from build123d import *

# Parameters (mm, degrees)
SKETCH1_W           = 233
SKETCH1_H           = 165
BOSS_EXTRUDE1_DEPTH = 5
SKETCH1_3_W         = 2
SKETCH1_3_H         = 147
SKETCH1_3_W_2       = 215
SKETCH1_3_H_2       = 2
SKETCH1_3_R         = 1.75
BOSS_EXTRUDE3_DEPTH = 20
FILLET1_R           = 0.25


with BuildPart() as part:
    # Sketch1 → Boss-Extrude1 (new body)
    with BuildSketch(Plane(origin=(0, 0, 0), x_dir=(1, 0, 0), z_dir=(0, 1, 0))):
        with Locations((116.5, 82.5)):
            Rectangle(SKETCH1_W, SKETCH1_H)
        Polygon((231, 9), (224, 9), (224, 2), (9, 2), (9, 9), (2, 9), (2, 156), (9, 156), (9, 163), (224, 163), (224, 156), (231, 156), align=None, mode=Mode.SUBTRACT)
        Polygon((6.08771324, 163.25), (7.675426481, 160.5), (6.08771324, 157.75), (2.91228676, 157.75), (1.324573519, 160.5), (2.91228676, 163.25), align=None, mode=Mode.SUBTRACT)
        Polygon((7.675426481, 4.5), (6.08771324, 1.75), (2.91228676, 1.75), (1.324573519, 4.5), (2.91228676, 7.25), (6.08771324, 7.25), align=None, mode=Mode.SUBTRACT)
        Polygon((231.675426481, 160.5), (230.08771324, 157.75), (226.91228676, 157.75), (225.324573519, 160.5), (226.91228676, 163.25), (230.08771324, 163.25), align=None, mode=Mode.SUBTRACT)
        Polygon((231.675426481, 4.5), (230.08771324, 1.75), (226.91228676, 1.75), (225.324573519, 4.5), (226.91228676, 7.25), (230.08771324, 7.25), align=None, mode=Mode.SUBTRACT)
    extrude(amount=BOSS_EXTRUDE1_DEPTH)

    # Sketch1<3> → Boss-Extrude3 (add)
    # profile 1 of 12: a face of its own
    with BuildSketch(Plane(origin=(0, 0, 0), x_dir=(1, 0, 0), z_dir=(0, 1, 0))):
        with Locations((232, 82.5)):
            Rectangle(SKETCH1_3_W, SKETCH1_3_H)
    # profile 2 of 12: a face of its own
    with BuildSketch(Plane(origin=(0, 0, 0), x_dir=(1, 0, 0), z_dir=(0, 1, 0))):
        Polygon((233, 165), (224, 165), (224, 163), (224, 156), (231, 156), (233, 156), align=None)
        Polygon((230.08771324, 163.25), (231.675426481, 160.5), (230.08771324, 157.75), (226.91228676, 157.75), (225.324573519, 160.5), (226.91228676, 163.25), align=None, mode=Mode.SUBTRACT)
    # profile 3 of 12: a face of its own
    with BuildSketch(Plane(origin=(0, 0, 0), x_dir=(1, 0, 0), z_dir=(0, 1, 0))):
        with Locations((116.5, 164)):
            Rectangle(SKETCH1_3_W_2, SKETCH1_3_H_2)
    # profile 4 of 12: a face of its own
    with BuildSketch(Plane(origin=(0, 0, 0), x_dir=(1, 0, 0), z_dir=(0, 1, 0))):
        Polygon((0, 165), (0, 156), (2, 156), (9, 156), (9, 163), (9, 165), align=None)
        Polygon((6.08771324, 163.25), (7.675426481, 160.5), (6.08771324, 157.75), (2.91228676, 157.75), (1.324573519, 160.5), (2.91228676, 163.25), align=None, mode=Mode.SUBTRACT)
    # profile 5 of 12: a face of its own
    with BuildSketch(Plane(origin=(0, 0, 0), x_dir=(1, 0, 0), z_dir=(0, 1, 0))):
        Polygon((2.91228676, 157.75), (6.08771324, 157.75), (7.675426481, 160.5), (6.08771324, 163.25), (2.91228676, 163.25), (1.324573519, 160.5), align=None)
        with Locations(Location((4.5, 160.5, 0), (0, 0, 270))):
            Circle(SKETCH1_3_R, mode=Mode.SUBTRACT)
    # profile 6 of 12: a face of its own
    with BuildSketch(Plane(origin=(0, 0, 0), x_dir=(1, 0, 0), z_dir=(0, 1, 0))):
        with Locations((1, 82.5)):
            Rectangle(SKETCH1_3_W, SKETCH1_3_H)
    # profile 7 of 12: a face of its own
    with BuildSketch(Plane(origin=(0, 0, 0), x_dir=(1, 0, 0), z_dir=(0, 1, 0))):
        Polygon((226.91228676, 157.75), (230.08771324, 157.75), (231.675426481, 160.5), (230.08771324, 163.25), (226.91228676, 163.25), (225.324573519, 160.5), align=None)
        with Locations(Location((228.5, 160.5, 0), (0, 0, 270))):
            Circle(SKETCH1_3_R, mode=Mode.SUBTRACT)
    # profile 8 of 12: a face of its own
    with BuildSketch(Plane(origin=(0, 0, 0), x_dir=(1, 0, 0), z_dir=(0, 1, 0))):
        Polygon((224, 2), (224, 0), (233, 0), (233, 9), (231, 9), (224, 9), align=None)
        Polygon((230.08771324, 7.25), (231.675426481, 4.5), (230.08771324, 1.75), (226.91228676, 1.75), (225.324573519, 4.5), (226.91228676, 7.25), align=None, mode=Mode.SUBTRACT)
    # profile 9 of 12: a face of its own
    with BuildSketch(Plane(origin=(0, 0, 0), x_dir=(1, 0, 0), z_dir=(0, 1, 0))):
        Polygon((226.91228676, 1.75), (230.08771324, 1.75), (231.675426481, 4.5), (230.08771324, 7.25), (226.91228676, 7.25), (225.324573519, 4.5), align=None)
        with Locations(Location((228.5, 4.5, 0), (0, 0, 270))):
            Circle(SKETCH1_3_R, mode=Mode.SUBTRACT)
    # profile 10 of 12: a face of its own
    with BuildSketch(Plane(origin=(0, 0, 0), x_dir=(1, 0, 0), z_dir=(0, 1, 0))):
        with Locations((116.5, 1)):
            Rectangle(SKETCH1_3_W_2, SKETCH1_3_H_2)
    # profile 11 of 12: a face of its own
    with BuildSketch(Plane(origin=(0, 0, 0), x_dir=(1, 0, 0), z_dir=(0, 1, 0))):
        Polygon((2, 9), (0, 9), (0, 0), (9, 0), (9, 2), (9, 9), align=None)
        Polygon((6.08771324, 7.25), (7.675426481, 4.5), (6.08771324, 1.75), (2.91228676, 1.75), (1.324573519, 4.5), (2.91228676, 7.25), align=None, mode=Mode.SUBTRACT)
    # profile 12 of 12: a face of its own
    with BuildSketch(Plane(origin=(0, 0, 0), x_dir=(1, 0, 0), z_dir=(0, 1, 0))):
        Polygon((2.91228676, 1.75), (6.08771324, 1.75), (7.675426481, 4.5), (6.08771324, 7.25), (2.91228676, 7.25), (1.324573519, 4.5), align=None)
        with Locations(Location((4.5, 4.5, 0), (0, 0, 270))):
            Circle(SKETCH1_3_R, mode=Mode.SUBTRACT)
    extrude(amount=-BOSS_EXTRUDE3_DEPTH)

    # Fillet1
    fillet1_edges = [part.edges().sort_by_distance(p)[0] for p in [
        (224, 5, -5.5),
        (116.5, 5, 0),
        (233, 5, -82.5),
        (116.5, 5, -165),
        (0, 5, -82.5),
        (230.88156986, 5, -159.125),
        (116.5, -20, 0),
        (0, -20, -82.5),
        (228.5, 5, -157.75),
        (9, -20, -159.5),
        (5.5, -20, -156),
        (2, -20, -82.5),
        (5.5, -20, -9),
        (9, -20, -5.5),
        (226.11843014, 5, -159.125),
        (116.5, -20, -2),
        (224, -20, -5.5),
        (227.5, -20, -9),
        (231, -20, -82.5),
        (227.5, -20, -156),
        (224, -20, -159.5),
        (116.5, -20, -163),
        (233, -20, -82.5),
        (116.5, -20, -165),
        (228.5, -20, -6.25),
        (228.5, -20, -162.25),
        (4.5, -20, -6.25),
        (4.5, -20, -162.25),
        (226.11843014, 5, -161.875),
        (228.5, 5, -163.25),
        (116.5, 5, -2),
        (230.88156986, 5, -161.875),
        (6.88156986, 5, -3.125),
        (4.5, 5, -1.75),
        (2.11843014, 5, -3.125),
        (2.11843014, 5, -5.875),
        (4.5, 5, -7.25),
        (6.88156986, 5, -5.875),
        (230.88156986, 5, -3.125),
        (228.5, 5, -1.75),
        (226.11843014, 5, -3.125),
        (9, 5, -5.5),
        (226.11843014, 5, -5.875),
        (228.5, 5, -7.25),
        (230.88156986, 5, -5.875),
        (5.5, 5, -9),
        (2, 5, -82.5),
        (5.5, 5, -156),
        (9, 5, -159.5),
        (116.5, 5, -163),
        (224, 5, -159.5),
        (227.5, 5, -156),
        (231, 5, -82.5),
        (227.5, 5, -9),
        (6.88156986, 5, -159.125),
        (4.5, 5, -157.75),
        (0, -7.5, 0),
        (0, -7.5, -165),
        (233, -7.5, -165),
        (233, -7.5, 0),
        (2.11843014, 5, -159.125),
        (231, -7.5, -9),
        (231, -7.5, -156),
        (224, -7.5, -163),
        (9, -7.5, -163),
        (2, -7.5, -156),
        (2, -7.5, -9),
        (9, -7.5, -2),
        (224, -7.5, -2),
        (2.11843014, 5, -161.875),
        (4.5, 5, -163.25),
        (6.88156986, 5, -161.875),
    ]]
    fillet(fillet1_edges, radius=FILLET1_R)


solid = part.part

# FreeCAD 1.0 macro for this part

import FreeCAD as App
import Part
import Sketcher

V = App.Vector
Q = App.Units.Quantity


def edges_at(feature, points):
    """Names of the edges that pass closest to the given points."""
    edges = feature.Shape.Edges
    near = lambda p: min(range(len(edges)), key=lambda i: edges[i].distToShape(Part.Vertex(*p))[0])
    return sorted({f"Edge{near(p) + 1}" for p in points})


def add_polygon(sketch, points):
    """Adds a closed chain of lines whose ends are joined by coincident constraints."""
    first, n = sketch.GeometryCount, len(points)
    for a, b in zip(points, points[1:] + points[:1]):
        sketch.addGeometry(Part.LineSegment(App.Vector(*a, 0), App.Vector(*b, 0)), False)
    for i in range(n):
        sketch.addConstraint(Sketcher.Constraint("Coincident", first + i, 2, first + (i + 1) % n, 1))

doc = App.newDocument("Part")
params = doc.addObject("Spreadsheet::Sheet", "Params")
for row, (alias, value) in enumerate([
    ("sketch1_width", "233 mm"),
    ("sketch1_width2", "7 mm"),
    ("sketch1_width3", "215 mm"),
    ("sketch1_height", "165 mm"),
    ("sketch1_height2", "147 mm"),
    ("pad1_length", "5 mm"),
    ("sketch2_diameter", "3.5 mm"),
    ("sketch2_width", "233 mm"),
    ("sketch2_width2", "7 mm"),
    ("sketch2_width3", "215 mm"),
    ("sketch2_height", "165 mm"),
    ("pad2_length", "20 mm"),
    ("fillet_radius", "0.25 mm"),
], start=1):
    params.set(f"A{row}", alias)
    params.set(f"B{row}", "=" + value)
    params.setAlias(f"B{row}", alias)

body = doc.addObject("PartDesign::Body", "Body")

# Sketch on XZ plane
sketch1 = body.newObject("Sketcher::SketchObject", "Sketch")
sketch1.AttachmentSupport = (doc.getObject("XZ_Plane"), [""])
sketch1.MapMode = "FlatFace"
add_polygon(sketch1, [(0, -165), (0, 0), (233, 0), (233, -165)])  # lines 0-3
add_polygon(sketch1, [(6.1, -7.2), (7.7, -4.5), (6.1, -1.8), (2.9, -1.8), (1.3, -4.5), (2.9, -7.2)])  # lines 4-9
add_polygon(sketch1, [(230.1, -7.2), (231.7, -4.5), (230.1, -1.8), (226.9, -1.8), (225.3, -4.5), (226.9, -7.2)])  # lines 10-15
add_polygon(sketch1, [(2.9, -163.2), (6.1, -163.2), (7.7, -160.5), (6.1, -157.8), (2.9, -157.8), (1.3, -160.5)])  # lines 16-21
add_polygon(sketch1, [(231, -156), (231, -9), (224, -9), (224, -2), (9, -2), (9, -9), (2, -9), (2, -156), (9, -156), (9, -163), (224, -163), (224, -156)])  # lines 22-33
add_polygon(sketch1, [(230.1, -163.2), (231.7, -160.5), (230.1, -157.8), (226.9, -157.8), (225.3, -160.5), (226.9, -163.2)])  # lines 34-39
sketch1.addConstraint(Sketcher.Constraint("Vertical", 0))
sketch1.addConstraint(Sketcher.Constraint("Horizontal", 1))
sketch1.addConstraint(Sketcher.Constraint("Vertical", 2))
sketch1.addConstraint(Sketcher.Constraint("Horizontal", 3))
sketch1.addConstraint(Sketcher.Constraint("Horizontal", 6))
sketch1.addConstraint(Sketcher.Constraint("Horizontal", 9))
sketch1.addConstraint(Sketcher.Constraint("Horizontal", 12))
sketch1.addConstraint(Sketcher.Constraint("Horizontal", 15))
sketch1.addConstraint(Sketcher.Constraint("Horizontal", 16))
sketch1.addConstraint(Sketcher.Constraint("Horizontal", 19))
sketch1.addConstraint(Sketcher.Constraint("Vertical", 22))
sketch1.addConstraint(Sketcher.Constraint("Horizontal", 23))
sketch1.addConstraint(Sketcher.Constraint("Vertical", 24))
sketch1.addConstraint(Sketcher.Constraint("Horizontal", 25))
sketch1.addConstraint(Sketcher.Constraint("Vertical", 26))
sketch1.addConstraint(Sketcher.Constraint("Horizontal", 27))
sketch1.addConstraint(Sketcher.Constraint("Vertical", 28))
sketch1.addConstraint(Sketcher.Constraint("Horizontal", 29))
sketch1.addConstraint(Sketcher.Constraint("Vertical", 30))
sketch1.addConstraint(Sketcher.Constraint("Horizontal", 31))
sketch1.addConstraint(Sketcher.Constraint("Vertical", 32))
sketch1.addConstraint(Sketcher.Constraint("Horizontal", 33))
sketch1.addConstraint(Sketcher.Constraint("Horizontal", 36))
sketch1.addConstraint(Sketcher.Constraint("Horizontal", 39))
sketch1.addConstraint(Sketcher.Constraint("Coincident", 0, 2, -1, 1))
sketch1.addConstraint(Sketcher.Constraint("Parallel", 4, 7))
sketch1.addConstraint(Sketcher.Constraint("Parallel", 5, 8))
sketch1.addConstraint(Sketcher.Constraint("Parallel", 7, 10))
sketch1.addConstraint(Sketcher.Constraint("Parallel", 8, 11))
sketch1.addConstraint(Sketcher.Constraint("Parallel", 10, 13))
sketch1.addConstraint(Sketcher.Constraint("Parallel", 11, 14))
sketch1.addConstraint(Sketcher.Constraint("Parallel", 13, 17))
sketch1.addConstraint(Sketcher.Constraint("Parallel", 14, 18))
sketch1.addConstraint(Sketcher.Constraint("Parallel", 17, 20))
sketch1.addConstraint(Sketcher.Constraint("Parallel", 18, 21))
sketch1.addConstraint(Sketcher.Constraint("Parallel", 20, 34))
sketch1.addConstraint(Sketcher.Constraint("Parallel", 21, 35))
sketch1.addConstraint(Sketcher.Constraint("Parallel", 34, 37))
sketch1.addConstraint(Sketcher.Constraint("Parallel", 35, 38))
sketch1.addConstraint(Sketcher.Constraint("Horizontal", 4, 2, 7, 2))
sketch1.addConstraint(Sketcher.Constraint("Horizontal", 7, 2, 10, 2))
sketch1.addConstraint(Sketcher.Constraint("Horizontal", 6, 2, 11, 2))
sketch1.addConstraint(Sketcher.Constraint("Horizontal", 10, 2, 13, 2))
sketch1.addConstraint(Sketcher.Constraint("Horizontal", 9, 2, 14, 2))
sketch1.addConstraint(Sketcher.Constraint("Horizontal", 17, 2, 20, 2))
sketch1.addConstraint(Sketcher.Constraint("Horizontal", 23, 2, 26, 2))
sketch1.addConstraint(Sketcher.Constraint("Horizontal", 29, 2, 32, 2))
sketch1.addConstraint(Sketcher.Constraint("Horizontal", 20, 2, 34, 2))
sketch1.addConstraint(Sketcher.Constraint("Horizontal", 19, 2, 35, 2))
sketch1.addConstraint(Sketcher.Constraint("Horizontal", 34, 2, 37, 2))
sketch1.addConstraint(Sketcher.Constraint("Horizontal", 21, 2, 38, 2))
sketch1.addConstraint(Sketcher.Constraint("Vertical", 6, 2, 8, 2))
sketch1.addConstraint(Sketcher.Constraint("Vertical", 5, 2, 9, 2))
sketch1.addConstraint(Sketcher.Constraint("Vertical", 9, 2, 16, 2))
sketch1.addConstraint(Sketcher.Constraint("Vertical", 4, 2, 17, 2))
sketch1.addConstraint(Sketcher.Constraint("Vertical", 16, 2, 18, 2))
sketch1.addConstraint(Sketcher.Constraint("Vertical", 8, 2, 19, 2))
sketch1.addConstraint(Sketcher.Constraint("Vertical", 26, 2, 29, 2))
sketch1.addConstraint(Sketcher.Constraint("Vertical", 24, 2, 31, 2))
sketch1.addConstraint(Sketcher.Constraint("Vertical", 10, 2, 34, 2))
sketch1.addConstraint(Sketcher.Constraint("Vertical", 14, 2, 36, 2))
sketch1.addConstraint(Sketcher.Constraint("Equal", 9, 12))
sketch1.addConstraint(Sketcher.Constraint("Equal", 23, 27))
sketch1.addConstraint(Sketcher.Constraint("Equal", 33, 24))
sketch1.addConstraint(Sketcher.Constraint("Equal", 26, 30))
sketch1.addConstraint(Sketcher.Constraint("DistanceX", 1, 1, 1, 2, 233.0))
sketch1.addConstraint(Sketcher.Constraint("DistanceX", 23, 2, 23, 1, 7.0))
sketch1.addConstraint(Sketcher.Constraint("DistanceX", 25, 2, 25, 1, 215.0))
sketch1.addConstraint(Sketcher.Constraint("DistanceY", 0, 1, 0, 2, 165.0))
sketch1.addConstraint(Sketcher.Constraint("DistanceY", 22, 1, 22, 2, 147.0))
sketch1.addConstraint(Sketcher.Constraint("Angle", 4, Q("60 deg")))
sketch1.addConstraint(Sketcher.Constraint("DistanceX", -1, 1, 22, 2, 231.0))
sketch1.addConstraint(Sketcher.Constraint("DistanceY", 22, 2, -1, 1, 9.0))
sketch1.addConstraint(Sketcher.Constraint("DistanceX", 4, 2, 10, 2, 224.0))
sketch1.addConstraint(Sketcher.Constraint("DistanceY", 16, 2, 9, 2, 156.0))
sketch1.addConstraint(Sketcher.Constraint("DistanceY", 4, 2, -1, 1, 4.5))
sketch1.addConstraint(Sketcher.Constraint("DistanceY", 8, 2, 6, 2, 5.5))
sketch1.addConstraint(Sketcher.Constraint("DistanceX", 6, 2, 6, 1, 3.175426))
sketch1.addConstraint(Sketcher.Constraint("DistanceX", -1, 1, 4, 2, 7.675426))
sketch1.setExpression("Constraints[105]", "Params.sketch1_width")
sketch1.setExpression("Constraints[106]", "Params.sketch1_width2")
sketch1.setExpression("Constraints[107]", "Params.sketch1_width3")
sketch1.setExpression("Constraints[108]", "Params.sketch1_height")
sketch1.setExpression("Constraints[109]", "Params.sketch1_height2")
pad1 = body.newObject("PartDesign::Pad", "Pad")
pad1.Profile = sketch1
pad1.setExpression("Length", "Params.pad1_length")
pad1.Reversed = True

# Sketch on XZ plane
sketch2 = body.newObject("Sketcher::SketchObject", "Sketch001")
sketch2.AttachmentSupport = (doc.getObject("XZ_Plane"), [""])
sketch2.MapMode = "FlatFace"
add_polygon(sketch2, [(233, -165), (0, -165), (0, 0), (233, 0)])  # lines 0-3
add_polygon(sketch2, [(231, -156), (231, -9), (224, -9), (224, -2), (9, -2), (9, -9), (2, -9), (2, -156), (9, -156), (9, -163), (224, -163), (224, -156)])  # lines 4-15
sketch2.addGeometry(Part.Circle(V(228.5, -4.5, 0), V(0, 0, 1), 1.8), False)  # 16
sketch2.addGeometry(Part.Circle(V(228.5, -160.5, 0), V(0, 0, 1), 1.8), False)  # 17
sketch2.addGeometry(Part.Circle(V(4.5, -4.5, 0), V(0, 0, 1), 1.8), False)  # 18
sketch2.addGeometry(Part.Circle(V(4.5, -160.5, 0), V(0, 0, 1), 1.8), False)  # 19
sketch2.addConstraint(Sketcher.Constraint("Horizontal", 0))
sketch2.addConstraint(Sketcher.Constraint("Vertical", 1))
sketch2.addConstraint(Sketcher.Constraint("Horizontal", 2))
sketch2.addConstraint(Sketcher.Constraint("Vertical", 3))
sketch2.addConstraint(Sketcher.Constraint("Vertical", 4))
sketch2.addConstraint(Sketcher.Constraint("Horizontal", 5))
sketch2.addConstraint(Sketcher.Constraint("Vertical", 6))
sketch2.addConstraint(Sketcher.Constraint("Horizontal", 7))
sketch2.addConstraint(Sketcher.Constraint("Vertical", 8))
sketch2.addConstraint(Sketcher.Constraint("Horizontal", 9))
sketch2.addConstraint(Sketcher.Constraint("Vertical", 10))
sketch2.addConstraint(Sketcher.Constraint("Horizontal", 11))
sketch2.addConstraint(Sketcher.Constraint("Vertical", 12))
sketch2.addConstraint(Sketcher.Constraint("Horizontal", 13))
sketch2.addConstraint(Sketcher.Constraint("Vertical", 14))
sketch2.addConstraint(Sketcher.Constraint("Horizontal", 15))
sketch2.addConstraint(Sketcher.Constraint("Coincident", 1, 2, -1, 1))
sketch2.addConstraint(Sketcher.Constraint("Equal", 16, 17))
sketch2.addConstraint(Sketcher.Constraint("Equal", 17, 18))
sketch2.addConstraint(Sketcher.Constraint("Equal", 18, 19))
sketch2.addConstraint(Sketcher.Constraint("Horizontal", 16, 3, 18, 3))
sketch2.addConstraint(Sketcher.Constraint("Horizontal", 17, 3, 19, 3))
sketch2.addConstraint(Sketcher.Constraint("Horizontal", 5, 2, 8, 2))
sketch2.addConstraint(Sketcher.Constraint("Horizontal", 11, 2, 14, 2))
sketch2.addConstraint(Sketcher.Constraint("Vertical", 16, 3, 17, 3))
sketch2.addConstraint(Sketcher.Constraint("Vertical", 18, 3, 19, 3))
sketch2.addConstraint(Sketcher.Constraint("Vertical", 8, 2, 11, 2))
sketch2.addConstraint(Sketcher.Constraint("Vertical", 6, 2, 13, 2))
sketch2.addConstraint(Sketcher.Constraint("Equal", 5, 9))
sketch2.addConstraint(Sketcher.Constraint("Equal", 15, 6))
sketch2.addConstraint(Sketcher.Constraint("Equal", 8, 12))
sketch2.addConstraint(Sketcher.Constraint("Diameter", 16, 3.5))
sketch2.addConstraint(Sketcher.Constraint("DistanceX", 0, 2, 0, 1, 233.0))
sketch2.addConstraint(Sketcher.Constraint("DistanceX", 5, 2, 5, 1, 7.0))
sketch2.addConstraint(Sketcher.Constraint("DistanceX", 7, 2, 7, 1, 215.0))
sketch2.addConstraint(Sketcher.Constraint("DistanceY", 1, 1, 1, 2, 165.0))
sketch2.addConstraint(Sketcher.Constraint("DistanceY", 4, 1, 4, 2, 147.0))
sketch2.addConstraint(Sketcher.Constraint("DistanceX", -1, 1, 4, 2, 231.0))
sketch2.addConstraint(Sketcher.Constraint("DistanceY", 4, 2, -1, 1, 9.0))
sketch2.addConstraint(Sketcher.Constraint("DistanceY", 17, 3, 16, 3, 156.0))
sketch2.addConstraint(Sketcher.Constraint("DistanceX", 18, 3, 16, 3, 224.0))
sketch2.addConstraint(Sketcher.Constraint("DistanceX", -1, 1, 16, 3, 228.5))
sketch2.addConstraint(Sketcher.Constraint("DistanceY", 16, 3, -1, 1, 4.5))
sketch2.setExpression("Constraints[47]", "Params.sketch2_diameter")
sketch2.setExpression("Constraints[48]", "Params.sketch2_width")
sketch2.setExpression("Constraints[49]", "Params.sketch2_width2")
sketch2.setExpression("Constraints[50]", "Params.sketch2_width3")
sketch2.setExpression("Constraints[51]", "Params.sketch2_height")
pad2 = body.newObject("PartDesign::Pad", "Pad001")
pad2.Profile = sketch2
pad2.setExpression("Length", "Params.pad2_length")
doc.recompute()

fillet = body.newObject("PartDesign::Fillet", "Fillet")
fillet.Base = (pad2, edges_at(pad2, [
    (224, 5, -5.5),
    (116.5, 5, 0),
    (233, 5, -82.5),
    (116.5, 5, -165),
    (0, 5, -82.5),
    (230.882, 5, -159.125),
    (116.5, -20, 0),
    (0, -20, -82.5),
    (228.5, 5, -157.75),
    (9, -20, -159.5),
    (5.5, -20, -156),
    (2, -20, -82.5),
    (5.5, -20, -9),
    (9, -20, -5.5),
    (226.118, 5, -159.125),
    (116.5, -20, -2),
    (224, -20, -5.5),
    (227.5, -20, -9),
    (231, -20, -82.5),
    (227.5, -20, -156),
    (224, -20, -159.5),
    (116.5, -20, -163),
    (233, -20, -82.5),
    (116.5, -20, -165),
    (228.5, -20, -6.25),
    (228.5, -20, -162.25),
    (4.5, -20, -6.25),
    (4.5, -20, -162.25),
    (226.118, 5, -161.875),
    (228.5, 5, -163.25),
    (116.5, 5, -2),
    (230.882, 5, -161.875),
    (6.882, 5, -3.125),
    (4.5, 5, -1.75),
    (2.118, 5, -3.125),
    (2.118, 5, -5.875),
    (4.5, 5, -7.25),
    (6.882, 5, -5.875),
    (230.882, 5, -3.125),
    (228.5, 5, -1.75),
    (226.118, 5, -3.125),
    (9, 5, -5.5),
    (226.118, 5, -5.875),
    (228.5, 5, -7.25),
    (230.882, 5, -5.875),
    (5.5, 5, -9),
    (2, 5, -82.5),
    (5.5, 5, -156),
    (9, 5, -159.5),
    (116.5, 5, -163),
    (224, 5, -159.5),
    (227.5, 5, -156),
    (231, 5, -82.5),
    (227.5, 5, -9),
    (6.882, 5, -159.125),
    (4.5, 5, -157.75),
    (0, -7.5, 0),
    (0, -7.5, -165),
    (233, -7.5, -165),
    (233, -7.5, 0),
    (2.118, 5, -159.125),
    (231, -7.5, -9),
    (231, -7.5, -156),
    (224, -7.5, -163),
    (9, -7.5, -163),
    (2, -7.5, -156),
    (2, -7.5, -9),
    (9, -7.5, -2),
    (224, -7.5, -2),
    (2.118, 5, -161.875),
    (4.5, 5, -163.25),
    (6.882, 5, -161.875),
]))
fillet.setExpression("Radius", "Params.fillet_radius")

doc.recompute()
